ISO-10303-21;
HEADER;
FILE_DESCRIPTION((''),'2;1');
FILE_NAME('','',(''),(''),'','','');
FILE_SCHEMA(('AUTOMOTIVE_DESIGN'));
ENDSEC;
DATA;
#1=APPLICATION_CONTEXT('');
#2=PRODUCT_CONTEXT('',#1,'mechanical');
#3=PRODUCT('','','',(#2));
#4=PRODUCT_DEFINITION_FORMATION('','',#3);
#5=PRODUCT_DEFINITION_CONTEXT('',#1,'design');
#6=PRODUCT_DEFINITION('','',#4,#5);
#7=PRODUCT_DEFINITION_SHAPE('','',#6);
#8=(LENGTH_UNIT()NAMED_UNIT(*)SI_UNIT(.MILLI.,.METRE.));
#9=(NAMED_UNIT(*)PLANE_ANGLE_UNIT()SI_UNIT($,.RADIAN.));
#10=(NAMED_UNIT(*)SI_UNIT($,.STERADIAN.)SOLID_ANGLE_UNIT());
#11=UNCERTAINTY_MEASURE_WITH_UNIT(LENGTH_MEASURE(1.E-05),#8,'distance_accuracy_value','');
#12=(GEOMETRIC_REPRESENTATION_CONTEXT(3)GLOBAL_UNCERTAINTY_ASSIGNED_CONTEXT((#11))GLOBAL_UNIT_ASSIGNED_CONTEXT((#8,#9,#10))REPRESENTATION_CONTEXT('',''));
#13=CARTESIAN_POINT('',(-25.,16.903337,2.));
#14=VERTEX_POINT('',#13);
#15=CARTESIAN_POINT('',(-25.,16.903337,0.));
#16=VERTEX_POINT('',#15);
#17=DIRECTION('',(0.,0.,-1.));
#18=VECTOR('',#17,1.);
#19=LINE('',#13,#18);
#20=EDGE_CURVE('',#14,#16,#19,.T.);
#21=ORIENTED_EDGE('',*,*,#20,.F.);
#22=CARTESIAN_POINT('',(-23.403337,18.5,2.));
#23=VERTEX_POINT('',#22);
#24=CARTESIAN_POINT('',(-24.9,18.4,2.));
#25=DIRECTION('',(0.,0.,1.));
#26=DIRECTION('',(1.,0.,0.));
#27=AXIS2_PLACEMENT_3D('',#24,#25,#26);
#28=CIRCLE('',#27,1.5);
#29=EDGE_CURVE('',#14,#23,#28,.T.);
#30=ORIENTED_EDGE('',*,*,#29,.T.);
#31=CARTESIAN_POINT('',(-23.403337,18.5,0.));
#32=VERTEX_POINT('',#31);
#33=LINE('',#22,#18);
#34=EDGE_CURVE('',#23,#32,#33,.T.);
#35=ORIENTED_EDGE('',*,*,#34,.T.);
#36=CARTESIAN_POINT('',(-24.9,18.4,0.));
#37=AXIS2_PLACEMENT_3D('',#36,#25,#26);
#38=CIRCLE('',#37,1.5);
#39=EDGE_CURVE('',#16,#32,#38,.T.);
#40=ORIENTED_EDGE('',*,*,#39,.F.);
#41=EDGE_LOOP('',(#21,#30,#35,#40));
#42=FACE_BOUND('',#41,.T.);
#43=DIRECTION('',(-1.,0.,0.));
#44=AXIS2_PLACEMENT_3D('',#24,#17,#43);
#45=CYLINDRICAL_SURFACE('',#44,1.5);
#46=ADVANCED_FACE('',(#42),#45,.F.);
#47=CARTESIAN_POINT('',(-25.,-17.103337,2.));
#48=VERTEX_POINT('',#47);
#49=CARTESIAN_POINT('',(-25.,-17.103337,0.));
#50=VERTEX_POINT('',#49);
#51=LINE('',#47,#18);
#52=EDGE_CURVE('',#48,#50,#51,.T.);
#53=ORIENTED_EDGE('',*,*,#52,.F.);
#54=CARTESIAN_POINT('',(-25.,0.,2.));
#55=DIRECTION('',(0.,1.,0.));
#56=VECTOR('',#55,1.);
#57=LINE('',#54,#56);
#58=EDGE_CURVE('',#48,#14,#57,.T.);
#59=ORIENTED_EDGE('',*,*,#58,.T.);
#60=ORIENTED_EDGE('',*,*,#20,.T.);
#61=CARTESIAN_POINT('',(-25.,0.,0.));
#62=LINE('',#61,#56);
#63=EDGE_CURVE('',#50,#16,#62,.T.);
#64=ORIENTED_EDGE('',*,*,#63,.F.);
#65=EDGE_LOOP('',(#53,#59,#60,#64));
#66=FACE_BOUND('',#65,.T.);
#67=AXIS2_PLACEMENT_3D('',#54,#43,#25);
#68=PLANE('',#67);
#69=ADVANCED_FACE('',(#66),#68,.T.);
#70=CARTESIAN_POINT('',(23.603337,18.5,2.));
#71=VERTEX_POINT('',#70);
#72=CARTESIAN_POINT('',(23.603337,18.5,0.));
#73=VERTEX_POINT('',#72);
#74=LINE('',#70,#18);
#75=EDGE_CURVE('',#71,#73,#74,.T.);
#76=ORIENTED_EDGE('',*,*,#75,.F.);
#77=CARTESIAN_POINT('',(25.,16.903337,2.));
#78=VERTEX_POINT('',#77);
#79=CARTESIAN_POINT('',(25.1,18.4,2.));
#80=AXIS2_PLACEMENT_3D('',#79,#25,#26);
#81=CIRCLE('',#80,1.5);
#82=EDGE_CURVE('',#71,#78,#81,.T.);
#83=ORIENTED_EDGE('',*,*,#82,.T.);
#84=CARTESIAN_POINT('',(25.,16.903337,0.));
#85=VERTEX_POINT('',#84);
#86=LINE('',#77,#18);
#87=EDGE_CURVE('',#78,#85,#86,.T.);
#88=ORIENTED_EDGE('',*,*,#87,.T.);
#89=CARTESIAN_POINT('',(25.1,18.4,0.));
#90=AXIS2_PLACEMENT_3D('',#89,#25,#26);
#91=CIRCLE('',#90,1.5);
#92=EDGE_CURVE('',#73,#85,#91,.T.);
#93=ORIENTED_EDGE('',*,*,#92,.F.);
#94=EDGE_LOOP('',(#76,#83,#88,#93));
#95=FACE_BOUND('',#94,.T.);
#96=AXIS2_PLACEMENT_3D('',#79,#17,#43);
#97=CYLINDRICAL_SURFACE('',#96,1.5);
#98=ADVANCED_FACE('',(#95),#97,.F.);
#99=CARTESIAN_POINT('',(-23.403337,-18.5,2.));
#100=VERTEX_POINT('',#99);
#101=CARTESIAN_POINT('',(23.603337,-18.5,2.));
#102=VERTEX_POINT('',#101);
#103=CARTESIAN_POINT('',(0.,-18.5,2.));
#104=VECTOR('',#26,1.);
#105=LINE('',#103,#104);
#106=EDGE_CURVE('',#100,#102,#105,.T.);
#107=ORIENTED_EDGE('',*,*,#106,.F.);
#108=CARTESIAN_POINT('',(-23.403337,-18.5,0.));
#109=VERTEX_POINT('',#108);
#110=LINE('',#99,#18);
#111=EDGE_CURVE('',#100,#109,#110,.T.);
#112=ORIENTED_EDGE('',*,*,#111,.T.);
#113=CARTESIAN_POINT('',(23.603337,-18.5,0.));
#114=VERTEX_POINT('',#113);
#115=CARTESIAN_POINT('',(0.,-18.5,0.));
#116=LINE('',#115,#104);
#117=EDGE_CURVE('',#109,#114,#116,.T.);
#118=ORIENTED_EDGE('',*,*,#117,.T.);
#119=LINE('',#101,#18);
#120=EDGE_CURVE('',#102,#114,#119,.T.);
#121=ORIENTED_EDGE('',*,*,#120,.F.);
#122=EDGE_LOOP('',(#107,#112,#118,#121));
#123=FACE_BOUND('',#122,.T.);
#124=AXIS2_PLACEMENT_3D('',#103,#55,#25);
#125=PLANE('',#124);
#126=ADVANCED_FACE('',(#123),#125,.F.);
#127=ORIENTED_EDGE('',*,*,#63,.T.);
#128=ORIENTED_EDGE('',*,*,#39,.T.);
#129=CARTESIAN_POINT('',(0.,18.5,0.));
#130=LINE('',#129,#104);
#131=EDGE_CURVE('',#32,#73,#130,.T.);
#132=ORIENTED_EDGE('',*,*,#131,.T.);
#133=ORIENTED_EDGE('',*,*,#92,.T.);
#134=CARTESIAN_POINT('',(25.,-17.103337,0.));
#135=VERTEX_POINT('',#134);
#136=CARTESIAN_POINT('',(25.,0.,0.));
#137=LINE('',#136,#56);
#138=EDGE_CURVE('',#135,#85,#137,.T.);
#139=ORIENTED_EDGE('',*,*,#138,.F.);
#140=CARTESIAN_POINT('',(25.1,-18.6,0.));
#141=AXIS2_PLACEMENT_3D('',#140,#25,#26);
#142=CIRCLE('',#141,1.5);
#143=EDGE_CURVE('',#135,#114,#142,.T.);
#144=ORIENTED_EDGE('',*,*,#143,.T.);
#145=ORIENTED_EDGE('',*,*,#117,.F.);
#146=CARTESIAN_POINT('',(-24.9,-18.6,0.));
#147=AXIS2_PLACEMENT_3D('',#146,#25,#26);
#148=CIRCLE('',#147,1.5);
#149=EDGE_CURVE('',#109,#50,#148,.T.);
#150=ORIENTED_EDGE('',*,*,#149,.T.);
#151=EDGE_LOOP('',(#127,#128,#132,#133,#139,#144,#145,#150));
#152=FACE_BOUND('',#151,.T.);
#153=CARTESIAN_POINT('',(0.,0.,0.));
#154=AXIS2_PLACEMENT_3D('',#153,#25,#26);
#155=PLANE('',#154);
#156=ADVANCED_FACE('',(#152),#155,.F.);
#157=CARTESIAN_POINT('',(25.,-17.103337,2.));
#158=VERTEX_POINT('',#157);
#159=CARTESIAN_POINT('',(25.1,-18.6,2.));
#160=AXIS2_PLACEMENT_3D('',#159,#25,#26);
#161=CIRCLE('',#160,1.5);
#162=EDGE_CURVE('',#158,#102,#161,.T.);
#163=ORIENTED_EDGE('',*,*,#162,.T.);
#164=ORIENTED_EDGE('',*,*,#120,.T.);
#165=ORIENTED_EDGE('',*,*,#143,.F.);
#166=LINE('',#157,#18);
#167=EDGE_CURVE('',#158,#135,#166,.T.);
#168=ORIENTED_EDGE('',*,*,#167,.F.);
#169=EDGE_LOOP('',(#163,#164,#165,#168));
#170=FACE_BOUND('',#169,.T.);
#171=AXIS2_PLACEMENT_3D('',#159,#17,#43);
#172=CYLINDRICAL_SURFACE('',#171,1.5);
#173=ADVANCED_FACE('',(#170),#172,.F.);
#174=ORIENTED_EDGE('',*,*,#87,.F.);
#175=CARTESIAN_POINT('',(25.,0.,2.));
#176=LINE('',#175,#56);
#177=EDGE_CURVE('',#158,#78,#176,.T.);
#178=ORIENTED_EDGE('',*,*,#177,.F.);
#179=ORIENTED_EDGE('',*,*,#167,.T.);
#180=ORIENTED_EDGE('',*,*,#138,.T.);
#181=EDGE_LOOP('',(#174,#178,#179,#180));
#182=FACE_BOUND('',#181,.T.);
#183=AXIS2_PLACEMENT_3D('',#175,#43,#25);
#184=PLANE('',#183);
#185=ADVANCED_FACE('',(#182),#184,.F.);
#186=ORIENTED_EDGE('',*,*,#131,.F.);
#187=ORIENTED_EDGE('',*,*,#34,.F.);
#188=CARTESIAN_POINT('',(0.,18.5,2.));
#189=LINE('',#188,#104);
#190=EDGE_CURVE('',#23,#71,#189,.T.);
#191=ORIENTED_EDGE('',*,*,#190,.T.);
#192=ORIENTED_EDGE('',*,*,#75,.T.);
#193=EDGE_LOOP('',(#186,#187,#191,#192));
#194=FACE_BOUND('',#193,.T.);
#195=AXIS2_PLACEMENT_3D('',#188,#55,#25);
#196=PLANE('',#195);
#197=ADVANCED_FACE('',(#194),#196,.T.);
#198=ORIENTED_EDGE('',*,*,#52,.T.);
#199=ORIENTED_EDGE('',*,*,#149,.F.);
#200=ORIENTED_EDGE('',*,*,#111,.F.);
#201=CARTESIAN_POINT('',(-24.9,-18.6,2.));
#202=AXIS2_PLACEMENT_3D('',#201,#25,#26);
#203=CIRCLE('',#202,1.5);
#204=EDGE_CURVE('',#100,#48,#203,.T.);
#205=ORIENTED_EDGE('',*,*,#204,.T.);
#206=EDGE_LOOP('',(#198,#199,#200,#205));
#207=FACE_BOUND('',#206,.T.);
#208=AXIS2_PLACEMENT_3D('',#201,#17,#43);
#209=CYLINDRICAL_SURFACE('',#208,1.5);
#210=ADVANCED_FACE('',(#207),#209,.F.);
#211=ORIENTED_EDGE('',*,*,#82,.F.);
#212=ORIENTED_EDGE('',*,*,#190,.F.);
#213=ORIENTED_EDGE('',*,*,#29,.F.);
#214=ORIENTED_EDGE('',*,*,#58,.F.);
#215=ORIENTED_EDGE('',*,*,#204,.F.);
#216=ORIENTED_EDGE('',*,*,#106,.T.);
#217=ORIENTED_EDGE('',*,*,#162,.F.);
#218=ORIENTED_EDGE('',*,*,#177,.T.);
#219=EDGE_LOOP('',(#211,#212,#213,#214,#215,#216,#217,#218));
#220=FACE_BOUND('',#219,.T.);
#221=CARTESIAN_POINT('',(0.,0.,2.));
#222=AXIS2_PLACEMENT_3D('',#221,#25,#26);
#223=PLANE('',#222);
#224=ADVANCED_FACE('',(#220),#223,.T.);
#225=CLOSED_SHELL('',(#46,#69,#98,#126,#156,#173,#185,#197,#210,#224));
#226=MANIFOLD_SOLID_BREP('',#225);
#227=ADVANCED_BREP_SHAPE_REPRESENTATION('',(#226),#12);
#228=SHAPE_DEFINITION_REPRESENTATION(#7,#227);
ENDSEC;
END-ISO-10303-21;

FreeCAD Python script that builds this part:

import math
import FreeCAD as App
import Part
import Sketcher
from FreeCAD import Vector
Q = App.Units.Quantity

doc = App.newDocument("Part")
body = doc.addObject("PartDesign::Body", "Body")

# Sketch on XY plane
sketch1 = doc.addObject("Sketcher::SketchObject", "Sketch")
body.addObject(sketch1)
sketch1.AttachmentSupport = (doc.XY_Plane, [""])
sketch1.MapMode = "FlatFace"
sketch1.addGeometry(Part.LineSegment(Vector(23.6, 18.5, 0), Vector(-23.4, 18.5, 0)), False)
sketch1.addGeometry(Part.ArcOfCircle(Part.Circle(Vector(-24.9, 18.4, 0), Vector(0, 0, 1), 1.5), math.radians(0), math.radians(3.82)), False)
sketch1.addGeometry(Part.ArcOfCircle(Part.Circle(Vector(-24.9, 18.4, 0), Vector(0, 0, 1), 1.5), math.radians(-94), math.radians(0)), False)
sketch1.addGeometry(Part.LineSegment(Vector(-25, 16.9, 0), Vector(-25, -17.1, 0)), False)
sketch1.addGeometry(Part.ArcOfCircle(Part.Circle(Vector(-24.9, -18.6, 0), Vector(0, 0, 1), 1.5), math.radians(4), math.radians(94)), False)
sketch1.addGeometry(Part.LineSegment(Vector(-23.4, -18.5, 0), Vector(23.6, -18.5, 0)), False)
sketch1.addGeometry(Part.ArcOfCircle(Part.Circle(Vector(25.1, -18.6, 0), Vector(0, 0, 1), 1.5), math.radians(94), math.radians(176)), False)
sketch1.addGeometry(Part.LineSegment(Vector(25, -17.1, 0), Vector(25, 16.9, 0)), False)
sketch1.addGeometry(Part.ArcOfCircle(Part.Circle(Vector(25.1, 18.4, 0), Vector(0, 0, 1), 1.5), math.radians(176), math.radians(266)), False)
sketch1.addConstraint(Sketcher.Constraint("Coincident", 0, 2, 1, 2))
sketch1.addConstraint(Sketcher.Constraint("Tangent", 1, 1, 2, 2))
sketch1.addConstraint(Sketcher.Constraint("Coincident", 2, 1, 3, 1))
sketch1.addConstraint(Sketcher.Constraint("Coincident", 3, 2, 4, 2))
sketch1.addConstraint(Sketcher.Constraint("Coincident", 4, 1, 5, 1))
sketch1.addConstraint(Sketcher.Constraint("Coincident", 5, 2, 6, 2))
sketch1.addConstraint(Sketcher.Constraint("Coincident", 6, 1, 7, 1))
sketch1.addConstraint(Sketcher.Constraint("Coincident", 7, 2, 8, 2))
sketch1.addConstraint(Sketcher.Constraint("Coincident", 8, 1, 0, 1))
sketch1.addConstraint(Sketcher.Constraint("Horizontal", 0))
sketch1.addConstraint(Sketcher.Constraint("Vertical", 3))
sketch1.addConstraint(Sketcher.Constraint("Horizontal", 5))
sketch1.addConstraint(Sketcher.Constraint("Vertical", 7))
sketch1.addConstraint(Sketcher.Constraint("Equal", 1, 2))
sketch1.addConstraint(Sketcher.Constraint("Equal", 2, 4))
sketch1.addConstraint(Sketcher.Constraint("Equal", 4, 6))
sketch1.addConstraint(Sketcher.Constraint("Equal", 6, 8))
sketch1.addConstraint(Sketcher.Constraint("Symmetric", 3, 2, 6, 1, -2))
sketch1.addConstraint(Sketcher.Constraint("Symmetric", 0, 2, 4, 1, -1))
sketch1.addConstraint(Sketcher.Constraint("Horizontal", 4, 3, 6, 3))
sketch1.addConstraint(Sketcher.Constraint("Horizontal", 2, 3, 8, 3))
sketch1.addConstraint(Sketcher.Constraint("Horizontal", 8, 3, 1, 1))
sketch1.addConstraint(Sketcher.Constraint("Horizontal", 2, 1, 7, 2))
sketch1.addConstraint(Sketcher.Constraint("Vertical", 2, 3, 4, 3))
sketch1.addConstraint(Sketcher.Constraint("Radius", 1, Q("1.499999 mm")))
sketch1.addConstraint(Sketcher.Constraint("DistanceX", 2, 1, -1, 1, Q("25 mm")))
sketch1.addConstraint(Sketcher.Constraint("DistanceY", 4, 3, 2, 3, Q("37 mm")))
sketch1.addConstraint(Sketcher.Constraint("DistanceX", 1, 3, -1, 1, Q("24.899999 mm")))
sketch1.addConstraint(Sketcher.Constraint("DistanceY", -1, 1, 1, 3, Q("18.4 mm")))
pad1 = doc.addObject("PartDesign::Pad", "Pad")
body.addObject(pad1)
pad1.Profile = sketch1
pad1.Length = 2

doc.recompute()
